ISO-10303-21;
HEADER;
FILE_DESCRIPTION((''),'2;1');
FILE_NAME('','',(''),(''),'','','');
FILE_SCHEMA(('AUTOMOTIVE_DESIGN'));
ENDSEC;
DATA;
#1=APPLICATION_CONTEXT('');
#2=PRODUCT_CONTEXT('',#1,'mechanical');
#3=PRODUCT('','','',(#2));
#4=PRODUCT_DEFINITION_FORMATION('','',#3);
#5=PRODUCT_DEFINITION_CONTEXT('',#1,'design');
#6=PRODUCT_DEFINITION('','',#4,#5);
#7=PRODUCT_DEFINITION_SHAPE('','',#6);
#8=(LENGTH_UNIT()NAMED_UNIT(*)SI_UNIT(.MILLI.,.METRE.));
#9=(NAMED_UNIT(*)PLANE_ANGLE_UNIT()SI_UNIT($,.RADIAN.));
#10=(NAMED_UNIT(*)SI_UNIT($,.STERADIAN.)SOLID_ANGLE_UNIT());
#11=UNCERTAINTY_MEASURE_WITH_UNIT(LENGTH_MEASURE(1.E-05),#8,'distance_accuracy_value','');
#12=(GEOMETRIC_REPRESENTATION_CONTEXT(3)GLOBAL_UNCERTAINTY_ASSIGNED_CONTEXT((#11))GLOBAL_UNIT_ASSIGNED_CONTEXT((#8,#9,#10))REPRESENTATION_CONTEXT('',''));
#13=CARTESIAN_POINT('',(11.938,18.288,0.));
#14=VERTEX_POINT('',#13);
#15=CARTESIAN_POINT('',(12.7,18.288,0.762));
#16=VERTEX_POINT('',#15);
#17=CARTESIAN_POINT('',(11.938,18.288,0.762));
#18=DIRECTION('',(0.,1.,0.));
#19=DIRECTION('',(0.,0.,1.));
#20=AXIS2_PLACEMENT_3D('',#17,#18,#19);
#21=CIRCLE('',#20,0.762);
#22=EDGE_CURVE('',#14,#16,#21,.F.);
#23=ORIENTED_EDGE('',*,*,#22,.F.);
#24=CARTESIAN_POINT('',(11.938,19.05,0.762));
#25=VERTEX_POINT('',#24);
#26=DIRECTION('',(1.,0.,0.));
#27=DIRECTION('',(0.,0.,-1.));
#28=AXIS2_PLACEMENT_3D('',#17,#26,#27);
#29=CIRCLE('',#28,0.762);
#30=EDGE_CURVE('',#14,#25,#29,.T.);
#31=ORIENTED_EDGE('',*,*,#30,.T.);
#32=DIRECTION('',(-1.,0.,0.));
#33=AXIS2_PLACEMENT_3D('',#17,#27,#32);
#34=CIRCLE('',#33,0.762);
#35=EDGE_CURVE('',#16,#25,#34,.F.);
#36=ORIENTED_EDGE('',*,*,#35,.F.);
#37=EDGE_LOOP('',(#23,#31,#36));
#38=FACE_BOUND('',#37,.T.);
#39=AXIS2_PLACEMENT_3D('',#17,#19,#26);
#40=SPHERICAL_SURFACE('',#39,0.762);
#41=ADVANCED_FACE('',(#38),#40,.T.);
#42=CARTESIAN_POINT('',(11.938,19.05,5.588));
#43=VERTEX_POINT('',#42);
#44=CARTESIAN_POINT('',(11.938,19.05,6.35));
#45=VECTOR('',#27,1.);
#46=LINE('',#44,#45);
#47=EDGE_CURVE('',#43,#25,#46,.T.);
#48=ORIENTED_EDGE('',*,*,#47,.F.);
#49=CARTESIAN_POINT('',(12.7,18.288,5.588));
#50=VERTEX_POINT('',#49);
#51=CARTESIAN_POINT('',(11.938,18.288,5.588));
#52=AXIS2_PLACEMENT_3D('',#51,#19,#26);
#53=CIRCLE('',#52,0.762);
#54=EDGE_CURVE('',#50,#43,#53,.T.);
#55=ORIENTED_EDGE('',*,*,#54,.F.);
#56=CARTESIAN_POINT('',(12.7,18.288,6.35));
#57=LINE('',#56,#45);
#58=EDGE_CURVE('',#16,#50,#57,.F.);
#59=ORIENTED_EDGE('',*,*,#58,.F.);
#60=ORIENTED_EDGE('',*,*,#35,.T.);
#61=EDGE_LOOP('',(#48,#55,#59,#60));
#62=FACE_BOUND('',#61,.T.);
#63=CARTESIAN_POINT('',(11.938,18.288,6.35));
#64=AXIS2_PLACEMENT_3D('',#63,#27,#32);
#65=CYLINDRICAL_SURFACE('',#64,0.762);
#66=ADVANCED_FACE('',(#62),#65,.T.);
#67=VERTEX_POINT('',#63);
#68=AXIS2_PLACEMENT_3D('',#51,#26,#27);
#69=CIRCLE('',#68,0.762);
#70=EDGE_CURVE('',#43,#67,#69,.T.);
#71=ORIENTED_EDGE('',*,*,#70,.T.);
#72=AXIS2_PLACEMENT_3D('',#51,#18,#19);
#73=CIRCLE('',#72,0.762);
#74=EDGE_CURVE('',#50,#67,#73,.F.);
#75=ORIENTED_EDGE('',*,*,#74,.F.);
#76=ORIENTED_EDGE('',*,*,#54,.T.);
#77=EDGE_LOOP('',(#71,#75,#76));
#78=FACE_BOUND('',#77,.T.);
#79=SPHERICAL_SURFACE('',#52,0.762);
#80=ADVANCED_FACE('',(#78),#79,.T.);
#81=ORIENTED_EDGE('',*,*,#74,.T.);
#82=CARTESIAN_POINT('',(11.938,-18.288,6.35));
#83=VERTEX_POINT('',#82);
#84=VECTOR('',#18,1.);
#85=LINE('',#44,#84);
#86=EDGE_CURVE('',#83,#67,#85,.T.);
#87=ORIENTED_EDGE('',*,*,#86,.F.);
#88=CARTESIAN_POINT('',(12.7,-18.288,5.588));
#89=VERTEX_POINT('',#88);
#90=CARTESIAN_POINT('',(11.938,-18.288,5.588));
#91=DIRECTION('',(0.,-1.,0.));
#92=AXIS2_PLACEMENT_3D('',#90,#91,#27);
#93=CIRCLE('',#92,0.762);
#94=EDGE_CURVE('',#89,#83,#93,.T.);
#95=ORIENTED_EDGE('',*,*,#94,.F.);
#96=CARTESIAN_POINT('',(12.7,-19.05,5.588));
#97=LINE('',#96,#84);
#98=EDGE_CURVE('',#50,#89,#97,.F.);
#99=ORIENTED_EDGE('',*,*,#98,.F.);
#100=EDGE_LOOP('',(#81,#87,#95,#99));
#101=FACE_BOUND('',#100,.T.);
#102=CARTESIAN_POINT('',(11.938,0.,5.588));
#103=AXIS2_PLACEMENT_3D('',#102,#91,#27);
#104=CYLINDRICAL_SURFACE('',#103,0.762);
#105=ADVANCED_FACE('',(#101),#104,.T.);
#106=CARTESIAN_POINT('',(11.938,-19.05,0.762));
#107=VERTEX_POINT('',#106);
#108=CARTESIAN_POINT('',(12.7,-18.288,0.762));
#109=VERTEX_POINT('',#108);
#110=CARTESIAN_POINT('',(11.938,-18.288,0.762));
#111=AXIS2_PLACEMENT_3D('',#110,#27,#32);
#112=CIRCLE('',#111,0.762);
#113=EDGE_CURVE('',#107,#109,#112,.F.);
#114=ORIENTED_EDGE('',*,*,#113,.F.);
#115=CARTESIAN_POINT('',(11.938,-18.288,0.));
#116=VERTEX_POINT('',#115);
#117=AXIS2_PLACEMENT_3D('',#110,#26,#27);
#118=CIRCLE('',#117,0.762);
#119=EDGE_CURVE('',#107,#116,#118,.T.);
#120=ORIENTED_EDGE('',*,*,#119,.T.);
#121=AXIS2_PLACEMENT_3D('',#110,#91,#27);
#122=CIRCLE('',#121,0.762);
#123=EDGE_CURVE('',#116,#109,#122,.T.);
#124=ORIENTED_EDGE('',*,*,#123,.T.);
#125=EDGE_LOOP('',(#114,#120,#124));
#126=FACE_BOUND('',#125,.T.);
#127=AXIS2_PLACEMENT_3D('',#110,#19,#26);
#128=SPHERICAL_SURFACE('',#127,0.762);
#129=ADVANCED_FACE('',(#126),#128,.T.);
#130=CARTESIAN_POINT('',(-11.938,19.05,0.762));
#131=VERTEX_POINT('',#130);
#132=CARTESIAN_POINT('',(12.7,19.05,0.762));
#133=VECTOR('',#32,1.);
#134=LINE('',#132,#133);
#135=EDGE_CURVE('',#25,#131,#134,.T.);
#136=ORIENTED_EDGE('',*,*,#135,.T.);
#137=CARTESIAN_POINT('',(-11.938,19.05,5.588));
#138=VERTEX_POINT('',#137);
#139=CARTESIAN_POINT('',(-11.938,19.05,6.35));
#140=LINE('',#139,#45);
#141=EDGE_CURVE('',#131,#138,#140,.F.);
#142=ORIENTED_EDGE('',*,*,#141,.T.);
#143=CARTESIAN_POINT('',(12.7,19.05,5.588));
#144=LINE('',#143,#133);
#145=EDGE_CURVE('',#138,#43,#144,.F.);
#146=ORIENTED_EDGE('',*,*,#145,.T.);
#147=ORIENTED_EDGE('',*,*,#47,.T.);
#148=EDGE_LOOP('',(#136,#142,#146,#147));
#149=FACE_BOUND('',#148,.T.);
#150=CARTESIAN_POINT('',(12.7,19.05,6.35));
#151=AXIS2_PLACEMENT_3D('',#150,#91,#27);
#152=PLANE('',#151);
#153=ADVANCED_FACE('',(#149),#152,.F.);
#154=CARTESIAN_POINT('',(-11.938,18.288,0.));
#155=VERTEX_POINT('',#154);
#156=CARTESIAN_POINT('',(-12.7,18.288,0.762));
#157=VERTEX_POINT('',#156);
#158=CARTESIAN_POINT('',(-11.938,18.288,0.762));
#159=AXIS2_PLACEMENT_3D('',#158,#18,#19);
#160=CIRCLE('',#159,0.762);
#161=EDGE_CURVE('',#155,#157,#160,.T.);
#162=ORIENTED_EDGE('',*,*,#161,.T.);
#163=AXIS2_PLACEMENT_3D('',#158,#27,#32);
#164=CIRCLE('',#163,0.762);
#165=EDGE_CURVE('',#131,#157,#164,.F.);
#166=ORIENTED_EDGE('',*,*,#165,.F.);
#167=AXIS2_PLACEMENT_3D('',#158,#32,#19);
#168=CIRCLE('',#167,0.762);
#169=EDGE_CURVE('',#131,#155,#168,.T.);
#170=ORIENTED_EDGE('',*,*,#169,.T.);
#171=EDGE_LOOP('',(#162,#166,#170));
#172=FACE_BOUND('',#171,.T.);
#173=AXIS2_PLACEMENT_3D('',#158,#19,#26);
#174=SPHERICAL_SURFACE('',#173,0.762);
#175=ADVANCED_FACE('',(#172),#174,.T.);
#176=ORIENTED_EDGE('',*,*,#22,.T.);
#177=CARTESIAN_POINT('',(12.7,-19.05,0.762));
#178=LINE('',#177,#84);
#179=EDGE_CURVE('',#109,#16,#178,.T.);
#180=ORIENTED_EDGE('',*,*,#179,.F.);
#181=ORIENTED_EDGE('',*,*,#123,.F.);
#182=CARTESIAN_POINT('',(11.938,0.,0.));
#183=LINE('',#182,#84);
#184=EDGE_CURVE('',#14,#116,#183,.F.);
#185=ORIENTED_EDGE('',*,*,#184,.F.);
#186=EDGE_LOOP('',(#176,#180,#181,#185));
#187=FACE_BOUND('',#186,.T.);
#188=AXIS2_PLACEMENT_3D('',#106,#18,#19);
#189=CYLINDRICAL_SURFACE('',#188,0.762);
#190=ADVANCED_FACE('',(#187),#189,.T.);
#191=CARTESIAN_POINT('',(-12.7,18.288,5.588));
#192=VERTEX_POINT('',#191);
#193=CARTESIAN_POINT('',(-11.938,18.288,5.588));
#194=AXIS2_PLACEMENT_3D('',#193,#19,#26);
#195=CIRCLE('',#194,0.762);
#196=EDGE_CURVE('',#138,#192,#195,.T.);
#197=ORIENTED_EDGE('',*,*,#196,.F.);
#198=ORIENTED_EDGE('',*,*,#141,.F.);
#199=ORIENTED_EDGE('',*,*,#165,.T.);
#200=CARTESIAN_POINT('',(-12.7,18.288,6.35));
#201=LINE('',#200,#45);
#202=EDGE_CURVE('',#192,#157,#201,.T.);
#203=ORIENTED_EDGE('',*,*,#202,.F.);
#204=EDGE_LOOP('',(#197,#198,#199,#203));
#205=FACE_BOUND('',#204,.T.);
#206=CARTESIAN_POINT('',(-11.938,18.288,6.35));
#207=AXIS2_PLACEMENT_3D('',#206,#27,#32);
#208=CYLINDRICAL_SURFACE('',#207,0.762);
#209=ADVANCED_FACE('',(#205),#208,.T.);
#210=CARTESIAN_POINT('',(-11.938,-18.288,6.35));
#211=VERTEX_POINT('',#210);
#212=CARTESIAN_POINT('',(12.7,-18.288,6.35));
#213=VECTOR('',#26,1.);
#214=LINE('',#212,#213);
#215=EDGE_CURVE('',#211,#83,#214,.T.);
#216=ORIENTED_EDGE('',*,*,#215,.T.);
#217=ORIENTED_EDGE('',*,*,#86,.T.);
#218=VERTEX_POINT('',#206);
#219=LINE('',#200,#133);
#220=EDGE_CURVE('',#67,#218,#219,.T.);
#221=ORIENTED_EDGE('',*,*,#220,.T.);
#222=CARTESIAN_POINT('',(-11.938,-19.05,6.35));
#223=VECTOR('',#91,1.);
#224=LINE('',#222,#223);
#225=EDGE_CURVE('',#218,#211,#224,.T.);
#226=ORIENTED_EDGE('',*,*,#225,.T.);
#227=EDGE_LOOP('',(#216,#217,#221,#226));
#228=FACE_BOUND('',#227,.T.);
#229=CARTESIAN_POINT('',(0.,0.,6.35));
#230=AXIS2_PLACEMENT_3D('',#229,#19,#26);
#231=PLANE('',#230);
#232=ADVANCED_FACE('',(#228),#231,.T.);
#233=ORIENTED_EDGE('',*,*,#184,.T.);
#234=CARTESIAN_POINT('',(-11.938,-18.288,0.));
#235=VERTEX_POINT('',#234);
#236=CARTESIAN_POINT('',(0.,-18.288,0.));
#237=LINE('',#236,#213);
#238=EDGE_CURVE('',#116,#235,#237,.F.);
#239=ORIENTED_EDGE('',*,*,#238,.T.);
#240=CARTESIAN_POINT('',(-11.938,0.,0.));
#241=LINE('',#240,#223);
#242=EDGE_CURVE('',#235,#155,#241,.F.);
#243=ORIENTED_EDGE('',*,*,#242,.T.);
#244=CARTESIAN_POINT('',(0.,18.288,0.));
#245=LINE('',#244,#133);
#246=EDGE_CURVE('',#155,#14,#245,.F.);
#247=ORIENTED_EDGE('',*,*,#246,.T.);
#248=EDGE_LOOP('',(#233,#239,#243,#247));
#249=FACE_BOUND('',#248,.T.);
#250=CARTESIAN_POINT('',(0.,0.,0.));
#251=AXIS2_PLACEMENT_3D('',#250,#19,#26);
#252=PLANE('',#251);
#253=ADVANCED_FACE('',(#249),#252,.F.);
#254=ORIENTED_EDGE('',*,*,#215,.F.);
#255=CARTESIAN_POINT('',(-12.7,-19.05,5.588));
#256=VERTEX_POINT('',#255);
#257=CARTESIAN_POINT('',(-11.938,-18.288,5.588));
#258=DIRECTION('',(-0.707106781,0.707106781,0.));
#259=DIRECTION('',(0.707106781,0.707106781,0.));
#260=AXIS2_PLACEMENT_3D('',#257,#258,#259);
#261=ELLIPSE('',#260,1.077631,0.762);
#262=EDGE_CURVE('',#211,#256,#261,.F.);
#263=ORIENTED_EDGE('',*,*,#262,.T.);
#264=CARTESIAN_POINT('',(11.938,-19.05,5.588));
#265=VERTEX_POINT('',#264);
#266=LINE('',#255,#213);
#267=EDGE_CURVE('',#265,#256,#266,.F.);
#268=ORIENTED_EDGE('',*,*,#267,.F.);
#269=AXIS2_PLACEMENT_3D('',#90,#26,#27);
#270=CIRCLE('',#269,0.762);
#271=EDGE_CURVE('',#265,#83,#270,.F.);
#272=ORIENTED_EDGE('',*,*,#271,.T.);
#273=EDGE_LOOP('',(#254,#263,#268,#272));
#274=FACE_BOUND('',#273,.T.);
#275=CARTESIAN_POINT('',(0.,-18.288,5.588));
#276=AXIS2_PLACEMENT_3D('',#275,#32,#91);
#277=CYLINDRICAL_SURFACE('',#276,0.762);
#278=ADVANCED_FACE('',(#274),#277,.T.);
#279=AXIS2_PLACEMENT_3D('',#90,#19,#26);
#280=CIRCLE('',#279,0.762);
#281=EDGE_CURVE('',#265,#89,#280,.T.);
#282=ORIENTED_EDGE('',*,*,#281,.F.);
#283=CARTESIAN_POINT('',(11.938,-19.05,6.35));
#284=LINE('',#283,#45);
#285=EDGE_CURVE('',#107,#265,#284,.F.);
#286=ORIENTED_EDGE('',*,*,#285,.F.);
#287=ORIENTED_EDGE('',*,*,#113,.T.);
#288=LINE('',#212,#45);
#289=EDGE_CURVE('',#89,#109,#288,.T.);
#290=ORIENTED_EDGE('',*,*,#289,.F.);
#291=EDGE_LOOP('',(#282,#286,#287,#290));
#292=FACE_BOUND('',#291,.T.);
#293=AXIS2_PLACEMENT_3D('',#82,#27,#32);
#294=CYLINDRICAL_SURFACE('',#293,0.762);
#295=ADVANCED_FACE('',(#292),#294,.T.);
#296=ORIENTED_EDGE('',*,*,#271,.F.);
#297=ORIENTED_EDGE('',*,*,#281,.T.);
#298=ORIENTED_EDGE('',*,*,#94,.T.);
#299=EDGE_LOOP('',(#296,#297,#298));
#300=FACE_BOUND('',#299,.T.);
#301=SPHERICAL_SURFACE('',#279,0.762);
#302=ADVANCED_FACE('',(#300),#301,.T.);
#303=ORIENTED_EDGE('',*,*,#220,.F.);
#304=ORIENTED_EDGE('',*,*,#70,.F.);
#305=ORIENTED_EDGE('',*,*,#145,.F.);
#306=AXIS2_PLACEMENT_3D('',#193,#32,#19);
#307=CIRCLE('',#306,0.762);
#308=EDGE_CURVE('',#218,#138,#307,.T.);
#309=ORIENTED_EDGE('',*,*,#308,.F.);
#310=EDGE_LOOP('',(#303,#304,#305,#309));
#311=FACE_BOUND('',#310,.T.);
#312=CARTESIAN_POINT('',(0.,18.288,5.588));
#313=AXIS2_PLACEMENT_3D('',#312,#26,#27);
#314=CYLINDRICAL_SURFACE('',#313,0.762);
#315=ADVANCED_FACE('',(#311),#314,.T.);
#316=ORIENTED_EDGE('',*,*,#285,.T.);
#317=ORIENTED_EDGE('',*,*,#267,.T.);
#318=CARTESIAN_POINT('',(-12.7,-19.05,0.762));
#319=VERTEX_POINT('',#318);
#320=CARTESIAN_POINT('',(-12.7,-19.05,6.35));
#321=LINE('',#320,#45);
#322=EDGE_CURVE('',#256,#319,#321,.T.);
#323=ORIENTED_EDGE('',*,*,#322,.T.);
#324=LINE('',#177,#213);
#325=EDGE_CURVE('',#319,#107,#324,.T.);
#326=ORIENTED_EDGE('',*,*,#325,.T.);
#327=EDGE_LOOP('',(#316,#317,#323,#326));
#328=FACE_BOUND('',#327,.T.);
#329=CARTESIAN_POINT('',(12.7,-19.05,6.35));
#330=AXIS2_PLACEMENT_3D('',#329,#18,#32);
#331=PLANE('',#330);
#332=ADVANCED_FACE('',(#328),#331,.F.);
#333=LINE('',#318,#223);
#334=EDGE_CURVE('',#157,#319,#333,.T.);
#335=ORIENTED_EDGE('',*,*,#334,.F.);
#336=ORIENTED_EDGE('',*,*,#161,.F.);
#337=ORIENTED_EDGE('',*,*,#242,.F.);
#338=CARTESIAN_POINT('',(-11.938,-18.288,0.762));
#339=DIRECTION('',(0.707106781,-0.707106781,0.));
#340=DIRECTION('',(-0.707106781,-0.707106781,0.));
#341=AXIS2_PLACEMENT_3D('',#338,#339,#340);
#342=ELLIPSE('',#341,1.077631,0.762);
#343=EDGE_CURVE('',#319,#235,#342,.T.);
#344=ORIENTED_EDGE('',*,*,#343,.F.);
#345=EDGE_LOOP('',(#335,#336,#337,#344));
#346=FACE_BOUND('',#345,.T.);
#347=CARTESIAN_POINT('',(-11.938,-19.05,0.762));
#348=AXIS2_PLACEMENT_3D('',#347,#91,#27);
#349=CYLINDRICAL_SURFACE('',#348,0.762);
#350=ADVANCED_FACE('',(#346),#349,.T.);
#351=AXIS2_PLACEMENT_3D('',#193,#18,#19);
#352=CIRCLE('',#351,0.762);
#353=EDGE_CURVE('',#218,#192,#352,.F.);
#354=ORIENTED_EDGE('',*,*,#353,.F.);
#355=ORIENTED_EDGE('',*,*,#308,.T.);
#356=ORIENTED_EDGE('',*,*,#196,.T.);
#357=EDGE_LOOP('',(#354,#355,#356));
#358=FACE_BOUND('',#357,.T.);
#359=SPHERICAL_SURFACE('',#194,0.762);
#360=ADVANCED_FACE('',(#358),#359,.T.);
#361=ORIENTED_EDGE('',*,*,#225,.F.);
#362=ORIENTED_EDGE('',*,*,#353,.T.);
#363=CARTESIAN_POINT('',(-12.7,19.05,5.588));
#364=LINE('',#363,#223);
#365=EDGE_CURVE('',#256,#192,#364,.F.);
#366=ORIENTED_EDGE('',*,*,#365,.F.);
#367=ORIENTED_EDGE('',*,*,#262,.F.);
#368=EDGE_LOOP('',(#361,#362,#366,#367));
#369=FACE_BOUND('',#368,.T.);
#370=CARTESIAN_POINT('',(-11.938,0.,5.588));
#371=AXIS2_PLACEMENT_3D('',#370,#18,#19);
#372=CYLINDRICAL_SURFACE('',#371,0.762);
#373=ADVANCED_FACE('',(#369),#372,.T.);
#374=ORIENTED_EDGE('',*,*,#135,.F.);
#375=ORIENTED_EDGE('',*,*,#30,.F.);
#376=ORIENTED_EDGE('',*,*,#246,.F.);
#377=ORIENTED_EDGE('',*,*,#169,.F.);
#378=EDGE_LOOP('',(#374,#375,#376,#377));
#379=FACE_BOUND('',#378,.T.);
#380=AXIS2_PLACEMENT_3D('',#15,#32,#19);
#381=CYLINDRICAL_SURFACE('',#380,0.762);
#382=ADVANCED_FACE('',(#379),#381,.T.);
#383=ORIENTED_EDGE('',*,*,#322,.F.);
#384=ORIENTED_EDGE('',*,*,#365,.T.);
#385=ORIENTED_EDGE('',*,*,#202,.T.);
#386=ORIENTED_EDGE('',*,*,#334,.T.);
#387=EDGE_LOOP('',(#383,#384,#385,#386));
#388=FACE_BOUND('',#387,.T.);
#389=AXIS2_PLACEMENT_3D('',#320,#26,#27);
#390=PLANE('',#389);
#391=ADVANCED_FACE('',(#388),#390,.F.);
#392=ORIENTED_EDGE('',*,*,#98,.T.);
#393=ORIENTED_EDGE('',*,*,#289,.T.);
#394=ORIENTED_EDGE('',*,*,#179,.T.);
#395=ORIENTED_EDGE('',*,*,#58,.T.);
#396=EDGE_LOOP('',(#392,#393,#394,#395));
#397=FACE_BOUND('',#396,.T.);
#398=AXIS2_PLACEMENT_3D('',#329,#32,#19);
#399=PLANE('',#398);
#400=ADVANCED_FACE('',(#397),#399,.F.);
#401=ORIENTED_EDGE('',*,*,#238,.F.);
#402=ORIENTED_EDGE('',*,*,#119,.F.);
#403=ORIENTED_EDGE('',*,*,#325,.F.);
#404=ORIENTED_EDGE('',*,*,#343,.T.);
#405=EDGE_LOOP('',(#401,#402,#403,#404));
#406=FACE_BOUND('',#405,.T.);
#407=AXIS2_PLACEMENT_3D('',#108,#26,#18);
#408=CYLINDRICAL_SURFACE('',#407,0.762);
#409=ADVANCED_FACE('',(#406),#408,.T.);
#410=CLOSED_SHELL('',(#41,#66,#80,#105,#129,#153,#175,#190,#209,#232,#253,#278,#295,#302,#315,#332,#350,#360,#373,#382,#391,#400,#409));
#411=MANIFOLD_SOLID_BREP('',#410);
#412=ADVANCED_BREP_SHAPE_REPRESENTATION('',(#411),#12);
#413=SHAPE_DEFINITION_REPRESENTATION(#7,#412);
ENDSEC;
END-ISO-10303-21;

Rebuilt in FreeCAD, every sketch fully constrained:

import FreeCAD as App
import Part
import Sketcher

V = App.Vector
Q = App.Units.Quantity


def edges_at(feature, points):
    """Names of the edges that pass closest to the given points."""
    edges = feature.Shape.Edges
    near = lambda p: min(range(len(edges)), key=lambda i: edges[i].distToShape(Part.Vertex(*p))[0])
    return sorted({f"Edge{near(p) + 1}" for p in points})


def add_polygon(sketch, points):
    """Adds a closed chain of lines whose ends are joined by coincident constraints."""
    first, n = sketch.GeometryCount, len(points)
    for a, b in zip(points, points[1:] + points[:1]):
        sketch.addGeometry(Part.LineSegment(App.Vector(*a, 0), App.Vector(*b, 0)), False)
    for i in range(n):
        sketch.addConstraint(Sketcher.Constraint("Coincident", first + i, 2, first + (i + 1) % n, 1))

doc = App.newDocument("Part")
params = doc.addObject("Spreadsheet::Sheet", "Params")
for row, (alias, value) in enumerate([
    ("sketch1_width", "1 in"),
    ("sketch1_height", "1.5 in"),
    ("pad1_length", "0.25 in"),
    ("fillet_radius", "0.03 in"),
], start=1):
    params.set(f"A{row}", alias)
    params.set(f"B{row}", "=" + value)
    params.setAlias(f"B{row}", alias)

body = doc.addObject("PartDesign::Body", "Body")

sketch1 = body.newObject("Sketcher::SketchObject", "Sketch")
sketch1.AttachmentSupport = (doc.getObject("XY_Plane"), [""])
sketch1.MapMode = "FlatFace"
add_polygon(sketch1, [(-13, 19), (-13, -19), (13, -19), (13, 19)])
sketch1.addConstraint([
    Sketcher.Constraint("Vertical", 0),
    Sketcher.Constraint("Horizontal", 1),
    Sketcher.Constraint("Vertical", 2),
    Sketcher.Constraint("Horizontal", 3),
    Sketcher.Constraint("Symmetric", 0, 2, 2, 2, -1, 1),
    Sketcher.Constraint("DistanceX", 1, 1, 1, 2, Q("1 in")),
    Sketcher.Constraint("DistanceY", 0, 2, 0, 1, Q("1.5 in")),
])
sketch1.setExpression("Constraints[9]", "Params.sketch1_width")
sketch1.setExpression("Constraints[10]", "Params.sketch1_height")
pad1 = body.newObject("PartDesign::Pad", "Pad")
pad1.Profile = sketch1
pad1.setExpression("Length", "Params.pad1_length")
doc.recompute()

fillet = body.newObject("PartDesign::Fillet", "Fillet")
fillet.Base = (pad1, edges_at(pad1, [
    (12.7, 0, 6.35),
    (0, 19.05, 6.35),
    (-12.7, 0, 6.35),
    (0, 19.05, 0),
    (12.7, 0, 0),
    (0, -19.05, 0),
    (-12.7, 0, 0),
    (0, -19.05, 6.35),
    (-12.7, 19.05, 3.175),
    (12.7, 19.05, 3.175),
    (12.7, -19.05, 3.175),
]))
fillet.setExpression("Radius", "Params.fillet_radius")

doc.recompute()
